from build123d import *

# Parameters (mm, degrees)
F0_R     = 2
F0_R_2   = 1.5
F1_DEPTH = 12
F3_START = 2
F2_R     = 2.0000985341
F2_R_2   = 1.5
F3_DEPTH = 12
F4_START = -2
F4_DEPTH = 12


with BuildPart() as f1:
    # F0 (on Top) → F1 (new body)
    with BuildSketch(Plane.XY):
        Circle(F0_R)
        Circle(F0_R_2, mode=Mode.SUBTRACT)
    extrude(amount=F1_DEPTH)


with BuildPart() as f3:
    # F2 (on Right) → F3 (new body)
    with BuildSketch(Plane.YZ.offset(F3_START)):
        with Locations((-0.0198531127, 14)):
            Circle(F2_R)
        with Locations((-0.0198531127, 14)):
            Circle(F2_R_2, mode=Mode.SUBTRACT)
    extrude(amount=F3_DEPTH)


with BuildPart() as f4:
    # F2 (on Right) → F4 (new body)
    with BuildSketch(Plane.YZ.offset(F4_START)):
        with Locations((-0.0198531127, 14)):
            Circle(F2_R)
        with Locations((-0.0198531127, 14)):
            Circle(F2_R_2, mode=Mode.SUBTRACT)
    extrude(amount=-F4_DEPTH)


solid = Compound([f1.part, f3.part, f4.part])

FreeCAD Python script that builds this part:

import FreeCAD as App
import Part
import Sketcher

V = App.Vector
Q = App.Units.Quantity

doc = App.newDocument("Part")
params = doc.addObject("Spreadsheet::Sheet", "Params")
for row, (alias, value) in enumerate([
    ("sketch1_diameter", "4 mm"),
    ("sketch1_diameter2", "3 mm"),
    ("pad1_length", "12 mm"),
    ("sketch2_diameter", "3 mm"),
    ("pad2_length", "12 mm"),
    ("sketch3_diameter", "3 mm"),
    ("pad3_length", "12 mm"),
], start=1):
    params.set(f"A{row}", alias)
    params.set(f"B{row}", "=" + value)
    params.setAlias(f"B{row}", alias)

body = doc.addObject("PartDesign::Body", "Body")

# Sketch on XY plane
sketch1 = doc.addObject("Sketcher::SketchObject", "Sketch")
body.addObject(sketch1)
sketch1.AttachmentSupport = (doc.XY_Plane, [""])
sketch1.MapMode = "FlatFace"
sketch1.addGeometry([
    Part.Circle(V(0, 0, 0), V(0, 0, 1), 2),
    Part.Circle(V(0, 0, 0), V(0, 0, 1), 1.5),
], False)
sketch1.addConstraint([
    Sketcher.Constraint("Coincident", 0, 3, -1, 1),
    Sketcher.Constraint("Coincident", 1, 3, -1, 1),
    Sketcher.Constraint("Diameter", 0, Q("4 mm")),
    Sketcher.Constraint("Diameter", 1, Q("3 mm")),
])
sketch1.setExpression("Constraints[2]", "Params.sketch1_diameter")
sketch1.setExpression("Constraints[3]", "Params.sketch1_diameter2")
pad1 = doc.addObject("PartDesign::Pad", "Pad")
body.addObject(pad1)
pad1.Profile = sketch1
pad1.setExpression("Length", "Params.pad1_length")
body2 = doc.addObject("PartDesign::Body", "Body001")

# Sketch on YZ plane
sketch2 = doc.addObject("Sketcher::SketchObject", "Sketch001")
body2.addObject(sketch2)
sketch2.AttachmentSupport = (doc.getObject("YZ_Plane001"), [""])
sketch2.MapMode = "FlatFace"
sketch2.AttachmentOffset = App.Placement(V(0, 0, 2), App.Rotation())
sketch2.addGeometry([
    Part.Circle(V(-0.019853, 14, 0), V(0, 0, 1), 2.000099),
    Part.Circle(V(-0.019853, 14, 0), V(0, 0, 1), 1.5),
], False)
sketch2.addConstraint([
    Sketcher.Constraint("Coincident", 1, 3, 0, 3),
    Sketcher.Constraint("Diameter", 1, Q("3 mm")),
    Sketcher.Constraint("DistanceY", -1, 1, 0, 3, Q("14 mm")),
    Sketcher.Constraint("Diameter", 0, Q("4.000197 mm")),
    Sketcher.Constraint("DistanceX", 0, 3, -1, 1, Q("0.019853 mm")),
])
sketch2.setExpression("Constraints[1]", "Params.sketch2_diameter")
pad2 = doc.addObject("PartDesign::Pad", "Pad001")
body2.addObject(pad2)
pad2.Profile = sketch2
pad2.setExpression("Length", "Params.pad2_length")
body3 = doc.addObject("PartDesign::Body", "Body002")

# Sketch on YZ plane
sketch3 = doc.addObject("Sketcher::SketchObject", "Sketch002")
body3.addObject(sketch3)
sketch3.AttachmentSupport = (doc.getObject("YZ_Plane002"), [""])
sketch3.MapMode = "FlatFace"
sketch3.AttachmentOffset = App.Placement(V(0, 0, -2), App.Rotation())
sketch3.addGeometry([
    Part.Circle(V(-0.019853, 14, 0), V(0, 0, 1), 2.000099),
    Part.Circle(V(-0.019853, 14, 0), V(0, 0, 1), 1.5),
], False)
sketch3.addConstraint([
    Sketcher.Constraint("Coincident", 1, 3, 0, 3),
    Sketcher.Constraint("Diameter", 1, Q("3 mm")),
    Sketcher.Constraint("DistanceY", -1, 1, 0, 3, Q("14 mm")),
    Sketcher.Constraint("Diameter", 0, Q("4.000197 mm")),
    Sketcher.Constraint("DistanceX", 0, 3, -1, 1, Q("0.019853 mm")),
])
sketch3.setExpression("Constraints[1]", "Params.sketch3_diameter")
pad3 = doc.addObject("PartDesign::Pad", "Pad002")
body3.addObject(pad3)
pad3.Profile = sketch3
pad3.setExpression("Length", "Params.pad3_length")
pad3.Reversed = True

doc.recompute()
